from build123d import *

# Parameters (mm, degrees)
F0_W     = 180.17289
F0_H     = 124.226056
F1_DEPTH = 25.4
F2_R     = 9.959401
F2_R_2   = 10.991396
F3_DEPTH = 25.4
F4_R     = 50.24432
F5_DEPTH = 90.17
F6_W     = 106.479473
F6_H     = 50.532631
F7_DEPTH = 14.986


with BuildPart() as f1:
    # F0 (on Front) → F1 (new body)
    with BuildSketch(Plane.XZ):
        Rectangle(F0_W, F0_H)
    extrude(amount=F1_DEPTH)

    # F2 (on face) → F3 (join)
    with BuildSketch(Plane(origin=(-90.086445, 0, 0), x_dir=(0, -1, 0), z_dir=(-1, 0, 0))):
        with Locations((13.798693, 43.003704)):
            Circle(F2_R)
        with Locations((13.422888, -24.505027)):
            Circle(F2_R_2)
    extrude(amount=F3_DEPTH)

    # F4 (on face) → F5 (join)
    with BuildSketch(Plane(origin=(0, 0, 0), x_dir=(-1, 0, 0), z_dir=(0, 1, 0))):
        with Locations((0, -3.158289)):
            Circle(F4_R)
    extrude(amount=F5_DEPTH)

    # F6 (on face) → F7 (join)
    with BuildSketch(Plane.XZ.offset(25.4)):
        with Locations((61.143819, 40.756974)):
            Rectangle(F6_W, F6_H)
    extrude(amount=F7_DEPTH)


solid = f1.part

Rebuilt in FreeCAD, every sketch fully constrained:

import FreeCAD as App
import Part
import Sketcher
Q = App.Units.Quantity


def add_polygon(sketch, points):
    """Adds a closed chain of lines whose ends are joined by coincident constraints."""
    first, n = sketch.GeometryCount, len(points)
    for a, b in zip(points, points[1:] + points[:1]):
        sketch.addGeometry(Part.LineSegment(App.Vector(*a, 0), App.Vector(*b, 0)), False)
    for i in range(n):
        sketch.addConstraint(Sketcher.Constraint("Coincident", first + i, 2, first + (i + 1) % n, 1))

doc = App.newDocument("Part")
params = doc.addObject("Spreadsheet::Sheet", "Params")
for row, (alias, value) in enumerate([
    ("pad1_length", "1 in"),
    ("pad2_length", "1 in"),
    ("pad3_length", "3.55 in"),
    ("pad4_length", "0.59 in"),
], start=1):
    params.set(f"A{row}", alias)
    params.set(f"B{row}", "=" + value)
    params.setAlias(f"B{row}", alias)

body = doc.addObject("PartDesign::Body", "Body")

sketch1 = doc.addObject("Sketcher::SketchObject", "Sketch")
body.addObject(sketch1)
sketch1.AttachmentSupport = (doc.XZ_Plane, [""])
sketch1.MapMode = "FlatFace"
add_polygon(sketch1, [(-90.086445, 62.113028), (-90.086445, -62.113028), (90.086445, -62.113028), (90.086445, 62.113028)])
sketch1.addConstraint(Sketcher.Constraint("Vertical", 0))
sketch1.addConstraint(Sketcher.Constraint("Horizontal", 1))
sketch1.addConstraint(Sketcher.Constraint("Vertical", 2))
sketch1.addConstraint(Sketcher.Constraint("Horizontal", 3))
sketch1.addConstraint(Sketcher.Constraint("Symmetric", 0, 2, 2, 2, -1, 1))
sketch1.addConstraint(Sketcher.Constraint("DistanceX", 1, 1, 1, 2, Q("180.17289 mm")))
sketch1.addConstraint(Sketcher.Constraint("DistanceY", 0, 2, 0, 1, Q("124.226056 mm")))
pad1 = doc.addObject("PartDesign::Pad", "Pad")
body.addObject(pad1)
pad1.Profile = sketch1
pad1.setExpression("Length", "Params.pad1_length")

sketch2 = doc.addObject("Sketcher::SketchObject", "Sketch001")
body.addObject(sketch2)
sketch2.AttachmentSupport = (doc.YZ_Plane, [""])
sketch2.MapMode = "FlatFace"
sketch2.AttachmentOffset = App.Placement(App.Vector(0, 0, -90.086445), App.Rotation())
sketch2.addGeometry(Part.Circle(App.Vector(-13.798693, 43.003704, 0), App.Vector(0, 0, 1), 9.959401), False)
sketch2.addGeometry(Part.Circle(App.Vector(-13.422888, -24.505027, 0), App.Vector(0, 0, 1), 10.991396), False)
sketch2.addConstraint(Sketcher.Constraint("Diameter", 0, Q("19.918802 mm")))
sketch2.addConstraint(Sketcher.Constraint("Diameter", 1, Q("21.982792 mm")))
sketch2.addConstraint(Sketcher.Constraint("DistanceY", 1, 3, 0, 3, Q("67.508731 mm")))
sketch2.addConstraint(Sketcher.Constraint("DistanceX", 0, 3, -1, 1, Q("13.798693 mm")))
sketch2.addConstraint(Sketcher.Constraint("DistanceY", -1, 1, 0, 3, Q("43.003704 mm")))
sketch2.addConstraint(Sketcher.Constraint("DistanceX", 1, 3, -1, 1, Q("13.422888 mm")))
pad2 = doc.addObject("PartDesign::Pad", "Pad001")
body.addObject(pad2)
pad2.Profile = sketch2
pad2.setExpression("Length", "Params.pad2_length")
pad2.Reversed = True

sketch3 = doc.addObject("Sketcher::SketchObject", "Sketch002")
body.addObject(sketch3)
sketch3.AttachmentSupport = (doc.XZ_Plane, [""])
sketch3.MapMode = "FlatFace"
sketch3.addGeometry(Part.Circle(App.Vector(0, -3.158289, 0), App.Vector(0, 0, 1), 50.24432), False)
sketch3.addConstraint(Sketcher.Constraint("PointOnObject", 0, 3, -2))
sketch3.addConstraint(Sketcher.Constraint("Diameter", 0, Q("100.48864 mm")))
sketch3.addConstraint(Sketcher.Constraint("DistanceY", 0, 3, -1, 1, Q("3.158289 mm")))
pad3 = doc.addObject("PartDesign::Pad", "Pad002")
body.addObject(pad3)
pad3.Profile = sketch3
pad3.setExpression("Length", "Params.pad3_length")
pad3.Reversed = True

sketch4 = doc.addObject("Sketcher::SketchObject", "Sketch003")
body.addObject(sketch4)
sketch4.AttachmentSupport = (doc.XZ_Plane, [""])
sketch4.MapMode = "FlatFace"
sketch4.AttachmentOffset = App.Placement(App.Vector(0, 0, 1 * 25.4), App.Rotation())
add_polygon(sketch4, [(7.904083, 66.02329), (7.904083, 15.490659), (114.383555, 15.490659), (114.383555, 66.02329)])
sketch4.addConstraint(Sketcher.Constraint("Vertical", 0))
sketch4.addConstraint(Sketcher.Constraint("Horizontal", 1))
sketch4.addConstraint(Sketcher.Constraint("Vertical", 2))
sketch4.addConstraint(Sketcher.Constraint("Horizontal", 3))
sketch4.addConstraint(Sketcher.Constraint("DistanceY", 0, 2, 0, 1, Q("50.532631 mm")))
sketch4.addConstraint(Sketcher.Constraint("DistanceX", 1, 1, 1, 2, Q("106.479473 mm")))
sketch4.addConstraint(Sketcher.Constraint("DistanceY", -1, 1, 0, 2, Q("15.490659 mm")))
sketch4.addConstraint(Sketcher.Constraint("DistanceX", -1, 1, 0, 2, Q("7.904083 mm")))
pad4 = doc.addObject("PartDesign::Pad", "Pad003")
body.addObject(pad4)
pad4.Profile = sketch4
pad4.setExpression("Length", "Params.pad4_length")

doc.recompute()
